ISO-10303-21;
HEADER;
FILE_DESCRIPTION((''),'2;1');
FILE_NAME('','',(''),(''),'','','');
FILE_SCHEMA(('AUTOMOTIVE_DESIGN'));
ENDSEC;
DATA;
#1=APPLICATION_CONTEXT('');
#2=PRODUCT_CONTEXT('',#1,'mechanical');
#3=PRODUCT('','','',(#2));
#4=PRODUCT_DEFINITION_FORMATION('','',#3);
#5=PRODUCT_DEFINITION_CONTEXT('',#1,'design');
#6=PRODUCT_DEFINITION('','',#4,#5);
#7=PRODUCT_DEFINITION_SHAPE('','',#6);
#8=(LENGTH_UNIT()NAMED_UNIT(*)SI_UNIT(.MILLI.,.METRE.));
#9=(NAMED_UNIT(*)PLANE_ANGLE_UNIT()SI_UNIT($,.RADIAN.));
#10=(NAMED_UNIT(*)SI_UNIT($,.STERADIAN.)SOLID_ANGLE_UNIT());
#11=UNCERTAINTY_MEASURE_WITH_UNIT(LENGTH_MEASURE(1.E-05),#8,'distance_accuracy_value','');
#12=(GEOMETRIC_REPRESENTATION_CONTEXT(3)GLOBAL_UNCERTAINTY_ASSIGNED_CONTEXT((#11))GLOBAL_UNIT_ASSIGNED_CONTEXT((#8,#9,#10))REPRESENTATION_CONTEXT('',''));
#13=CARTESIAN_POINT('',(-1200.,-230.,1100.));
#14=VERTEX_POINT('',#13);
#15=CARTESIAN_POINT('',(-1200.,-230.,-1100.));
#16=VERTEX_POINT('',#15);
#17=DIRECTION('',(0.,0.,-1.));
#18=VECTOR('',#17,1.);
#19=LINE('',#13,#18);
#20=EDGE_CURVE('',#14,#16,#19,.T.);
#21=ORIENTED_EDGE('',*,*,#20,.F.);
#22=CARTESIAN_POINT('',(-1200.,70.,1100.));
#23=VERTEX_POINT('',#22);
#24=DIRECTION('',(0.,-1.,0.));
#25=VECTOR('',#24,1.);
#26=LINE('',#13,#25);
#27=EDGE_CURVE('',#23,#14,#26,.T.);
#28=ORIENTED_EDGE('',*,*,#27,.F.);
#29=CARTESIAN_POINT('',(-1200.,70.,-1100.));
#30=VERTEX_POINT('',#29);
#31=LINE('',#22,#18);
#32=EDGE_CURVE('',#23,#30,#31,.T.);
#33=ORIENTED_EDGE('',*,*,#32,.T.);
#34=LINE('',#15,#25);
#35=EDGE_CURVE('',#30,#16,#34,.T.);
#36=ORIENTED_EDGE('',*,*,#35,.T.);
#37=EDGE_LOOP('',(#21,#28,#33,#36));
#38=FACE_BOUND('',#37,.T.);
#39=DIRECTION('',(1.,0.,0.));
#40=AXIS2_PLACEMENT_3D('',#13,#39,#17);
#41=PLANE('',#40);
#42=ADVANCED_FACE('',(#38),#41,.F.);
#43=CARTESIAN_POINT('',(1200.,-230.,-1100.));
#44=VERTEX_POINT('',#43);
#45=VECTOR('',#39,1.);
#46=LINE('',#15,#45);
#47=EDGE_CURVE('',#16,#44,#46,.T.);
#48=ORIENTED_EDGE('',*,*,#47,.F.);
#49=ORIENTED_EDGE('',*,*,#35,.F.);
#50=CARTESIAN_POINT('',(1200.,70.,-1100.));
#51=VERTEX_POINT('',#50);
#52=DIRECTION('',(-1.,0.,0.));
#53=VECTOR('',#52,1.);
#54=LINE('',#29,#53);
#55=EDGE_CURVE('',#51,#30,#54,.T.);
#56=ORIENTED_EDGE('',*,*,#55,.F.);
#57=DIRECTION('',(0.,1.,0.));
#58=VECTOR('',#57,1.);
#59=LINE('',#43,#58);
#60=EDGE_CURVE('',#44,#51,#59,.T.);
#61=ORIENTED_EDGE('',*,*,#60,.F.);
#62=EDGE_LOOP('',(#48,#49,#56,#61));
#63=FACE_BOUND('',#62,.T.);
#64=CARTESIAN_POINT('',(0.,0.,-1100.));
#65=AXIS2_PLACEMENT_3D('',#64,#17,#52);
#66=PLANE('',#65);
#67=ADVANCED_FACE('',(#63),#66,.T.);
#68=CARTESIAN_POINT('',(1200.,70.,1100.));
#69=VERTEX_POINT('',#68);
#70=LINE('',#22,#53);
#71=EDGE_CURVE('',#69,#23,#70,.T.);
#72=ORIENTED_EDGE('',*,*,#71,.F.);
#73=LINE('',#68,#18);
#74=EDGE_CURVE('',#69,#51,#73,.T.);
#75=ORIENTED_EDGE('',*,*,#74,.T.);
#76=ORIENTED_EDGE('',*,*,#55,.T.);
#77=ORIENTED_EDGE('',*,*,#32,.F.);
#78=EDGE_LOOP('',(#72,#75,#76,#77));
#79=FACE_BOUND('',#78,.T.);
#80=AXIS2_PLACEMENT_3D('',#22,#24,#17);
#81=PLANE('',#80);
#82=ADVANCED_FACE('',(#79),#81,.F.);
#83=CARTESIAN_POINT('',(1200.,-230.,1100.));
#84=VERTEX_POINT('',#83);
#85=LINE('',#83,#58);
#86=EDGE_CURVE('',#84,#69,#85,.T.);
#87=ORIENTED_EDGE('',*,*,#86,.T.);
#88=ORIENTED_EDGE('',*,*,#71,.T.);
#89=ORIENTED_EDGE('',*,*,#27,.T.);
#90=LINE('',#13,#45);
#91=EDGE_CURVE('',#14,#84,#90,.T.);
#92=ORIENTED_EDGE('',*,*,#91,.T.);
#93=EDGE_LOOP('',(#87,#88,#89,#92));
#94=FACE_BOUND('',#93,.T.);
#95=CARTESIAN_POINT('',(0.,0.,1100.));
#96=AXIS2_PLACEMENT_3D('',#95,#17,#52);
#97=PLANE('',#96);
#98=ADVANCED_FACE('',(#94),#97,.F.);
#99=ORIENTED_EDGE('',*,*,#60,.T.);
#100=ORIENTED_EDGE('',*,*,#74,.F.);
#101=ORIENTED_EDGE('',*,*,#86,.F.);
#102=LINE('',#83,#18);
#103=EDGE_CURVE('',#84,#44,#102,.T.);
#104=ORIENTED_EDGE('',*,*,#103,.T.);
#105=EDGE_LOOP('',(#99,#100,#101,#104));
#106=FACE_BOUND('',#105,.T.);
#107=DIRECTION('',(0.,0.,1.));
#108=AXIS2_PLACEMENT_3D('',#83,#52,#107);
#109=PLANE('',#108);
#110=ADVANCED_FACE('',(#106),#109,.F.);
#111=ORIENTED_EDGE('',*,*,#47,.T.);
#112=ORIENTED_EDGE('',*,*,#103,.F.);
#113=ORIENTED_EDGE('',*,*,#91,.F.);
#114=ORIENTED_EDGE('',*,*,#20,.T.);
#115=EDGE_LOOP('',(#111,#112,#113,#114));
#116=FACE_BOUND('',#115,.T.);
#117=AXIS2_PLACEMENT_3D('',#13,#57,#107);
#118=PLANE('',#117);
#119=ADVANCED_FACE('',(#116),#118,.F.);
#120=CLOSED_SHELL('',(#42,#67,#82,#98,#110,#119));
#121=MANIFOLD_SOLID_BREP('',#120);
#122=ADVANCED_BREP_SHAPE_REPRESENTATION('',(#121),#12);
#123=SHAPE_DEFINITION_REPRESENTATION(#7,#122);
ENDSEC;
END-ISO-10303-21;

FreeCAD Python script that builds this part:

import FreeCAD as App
import Part
import Sketcher
from FreeCAD import Vector

doc = App.newDocument("Part")
body = doc.addObject("PartDesign::Body", "Body")

# Sketch on XY plane
sketch1 = body.newObject("Sketcher::SketchObject", "Sketch")
sketch1.AttachmentSupport = (doc.getObject("XY_Plane"), [""])
sketch1.MapMode = "FlatFace"
sketch1.AttachmentOffset = App.Placement(Vector(0, 0, -1100), App.Rotation())
sketch1.addGeometry(Part.LineSegment(Vector(-1200, 70, 0), Vector(-1200, -230, 0)), False)
sketch1.addGeometry(Part.LineSegment(Vector(-1200, -230, 0), Vector(1200, -230, 0)), False)
sketch1.addGeometry(Part.LineSegment(Vector(1200, -230, 0), Vector(1200, 70, 0)), False)
sketch1.addGeometry(Part.LineSegment(Vector(1200, 70, 0), Vector(-1200, 70, 0)), False)
sketch1.addConstraint(Sketcher.Constraint("Coincident", 0, 2, 1, 1))
sketch1.addConstraint(Sketcher.Constraint("Coincident", 1, 2, 2, 1))
sketch1.addConstraint(Sketcher.Constraint("Coincident", 2, 2, 3, 1))
sketch1.addConstraint(Sketcher.Constraint("Coincident", 3, 2, 0, 1))
sketch1.addConstraint(Sketcher.Constraint("Vertical", 0))
sketch1.addConstraint(Sketcher.Constraint("Horizontal", 1))
sketch1.addConstraint(Sketcher.Constraint("Vertical", 2))
sketch1.addConstraint(Sketcher.Constraint("Horizontal", 3))
sketch1.addConstraint(Sketcher.Constraint("DistanceX", 1, 1, 1, 2, 2400.0))
sketch1.addConstraint(Sketcher.Constraint("DistanceY", 0, 2, 0, 1, 300.0))
sketch1.addConstraint(Sketcher.Constraint("DistanceX", 0, 2, -1, 1, 1200.0))
sketch1.addConstraint(Sketcher.Constraint("DistanceY", 0, 2, -1, 1, 230.0))
pad1 = body.newObject("PartDesign::Pad", "Pad")
pad1.Profile = sketch1
pad1.Length = 2200

doc.recompute()
